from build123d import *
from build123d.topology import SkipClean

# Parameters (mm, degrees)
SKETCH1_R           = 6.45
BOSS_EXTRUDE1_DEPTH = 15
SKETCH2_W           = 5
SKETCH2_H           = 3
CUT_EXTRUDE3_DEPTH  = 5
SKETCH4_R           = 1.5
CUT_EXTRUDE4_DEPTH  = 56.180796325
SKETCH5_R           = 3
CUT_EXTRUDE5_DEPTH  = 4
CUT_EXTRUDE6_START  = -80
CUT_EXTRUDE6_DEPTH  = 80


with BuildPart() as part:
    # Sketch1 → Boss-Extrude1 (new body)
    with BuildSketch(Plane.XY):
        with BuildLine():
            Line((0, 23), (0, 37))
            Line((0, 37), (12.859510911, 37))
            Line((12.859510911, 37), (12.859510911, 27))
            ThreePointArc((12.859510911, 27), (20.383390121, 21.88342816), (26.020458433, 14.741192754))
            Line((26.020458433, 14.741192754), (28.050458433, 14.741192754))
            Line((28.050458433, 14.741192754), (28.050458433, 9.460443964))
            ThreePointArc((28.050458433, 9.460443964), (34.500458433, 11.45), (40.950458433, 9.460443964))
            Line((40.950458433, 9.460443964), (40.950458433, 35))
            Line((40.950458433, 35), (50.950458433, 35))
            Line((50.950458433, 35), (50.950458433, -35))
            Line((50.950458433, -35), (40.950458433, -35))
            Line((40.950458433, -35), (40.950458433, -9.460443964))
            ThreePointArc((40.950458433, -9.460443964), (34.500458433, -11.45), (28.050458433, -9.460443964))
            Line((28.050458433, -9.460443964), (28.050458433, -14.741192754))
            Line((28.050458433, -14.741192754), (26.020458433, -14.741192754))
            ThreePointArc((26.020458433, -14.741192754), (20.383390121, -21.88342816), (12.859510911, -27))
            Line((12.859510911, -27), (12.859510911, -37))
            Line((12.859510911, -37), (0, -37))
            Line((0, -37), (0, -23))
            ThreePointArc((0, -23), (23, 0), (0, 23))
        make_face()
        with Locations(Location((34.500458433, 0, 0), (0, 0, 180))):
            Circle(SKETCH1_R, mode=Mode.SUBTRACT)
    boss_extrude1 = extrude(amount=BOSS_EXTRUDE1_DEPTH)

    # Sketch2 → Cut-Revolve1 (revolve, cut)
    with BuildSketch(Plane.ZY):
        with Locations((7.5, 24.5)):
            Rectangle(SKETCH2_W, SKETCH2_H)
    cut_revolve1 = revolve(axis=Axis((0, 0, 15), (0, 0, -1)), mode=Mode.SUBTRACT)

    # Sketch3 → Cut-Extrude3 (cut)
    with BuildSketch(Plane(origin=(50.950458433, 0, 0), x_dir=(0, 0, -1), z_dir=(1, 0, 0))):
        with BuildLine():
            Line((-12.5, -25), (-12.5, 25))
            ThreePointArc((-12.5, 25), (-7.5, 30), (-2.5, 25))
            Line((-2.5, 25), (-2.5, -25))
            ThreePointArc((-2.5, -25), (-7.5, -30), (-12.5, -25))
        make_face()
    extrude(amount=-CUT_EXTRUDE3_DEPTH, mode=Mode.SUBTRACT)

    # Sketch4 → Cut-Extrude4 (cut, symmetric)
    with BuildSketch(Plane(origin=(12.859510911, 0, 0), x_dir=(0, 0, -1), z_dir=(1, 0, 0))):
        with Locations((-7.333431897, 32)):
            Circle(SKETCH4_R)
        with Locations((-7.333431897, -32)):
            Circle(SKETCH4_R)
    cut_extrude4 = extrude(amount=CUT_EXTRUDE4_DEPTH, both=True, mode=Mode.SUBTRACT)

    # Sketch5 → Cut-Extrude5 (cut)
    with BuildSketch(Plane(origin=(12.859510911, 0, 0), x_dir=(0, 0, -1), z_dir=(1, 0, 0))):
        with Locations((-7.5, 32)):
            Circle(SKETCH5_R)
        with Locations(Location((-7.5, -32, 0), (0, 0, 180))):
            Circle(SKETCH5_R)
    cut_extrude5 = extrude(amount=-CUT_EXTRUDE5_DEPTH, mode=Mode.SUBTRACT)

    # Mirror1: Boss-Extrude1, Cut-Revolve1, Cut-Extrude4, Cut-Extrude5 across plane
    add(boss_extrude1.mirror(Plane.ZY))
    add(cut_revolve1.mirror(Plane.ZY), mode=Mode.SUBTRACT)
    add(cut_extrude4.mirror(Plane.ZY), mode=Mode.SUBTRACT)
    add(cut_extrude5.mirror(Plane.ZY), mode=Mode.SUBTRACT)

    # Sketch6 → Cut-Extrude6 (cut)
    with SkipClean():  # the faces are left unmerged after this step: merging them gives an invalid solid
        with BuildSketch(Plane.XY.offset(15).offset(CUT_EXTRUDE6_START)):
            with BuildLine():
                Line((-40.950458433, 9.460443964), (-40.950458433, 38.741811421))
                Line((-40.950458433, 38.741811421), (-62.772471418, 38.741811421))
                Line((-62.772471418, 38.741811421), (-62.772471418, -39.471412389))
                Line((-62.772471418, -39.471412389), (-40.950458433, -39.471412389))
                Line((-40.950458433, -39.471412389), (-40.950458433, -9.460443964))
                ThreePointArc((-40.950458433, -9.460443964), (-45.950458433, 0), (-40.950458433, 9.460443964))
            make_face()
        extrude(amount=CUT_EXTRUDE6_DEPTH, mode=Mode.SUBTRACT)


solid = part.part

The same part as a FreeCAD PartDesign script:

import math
import FreeCAD as App
import Part
import Sketcher

V = App.Vector
Q = App.Units.Quantity


def add_polygon(sketch, points):
    """Adds a closed chain of lines whose ends are joined by coincident constraints."""
    first, n = sketch.GeometryCount, len(points)
    for a, b in zip(points, points[1:] + points[:1]):
        sketch.addGeometry(Part.LineSegment(App.Vector(*a, 0), App.Vector(*b, 0)), False)
    for i in range(n):
        sketch.addConstraint(Sketcher.Constraint("Coincident", first + i, 2, first + (i + 1) % n, 1))

doc = App.newDocument("Part")
params = doc.addObject("Spreadsheet::Sheet", "Params")
for row, (alias, value) in enumerate([
    ("sketch1_radius", "23 mm"),
    ("sketch1_diameter", "12.9 mm"),
    ("sketch1_width", "10 mm"),
    ("sketch1_height", "14 mm"),
    ("sketch1_height2", "70 mm"),
    ("pad1_length", "15 mm"),
    ("sketch2_width", "3 mm"),
    ("sketch2_height", "5 mm"),
    ("groove_angle", "360 deg"),
    ("sketch3_radius", "5 mm"),
    ("sketch3_width", "50 mm"),
    ("pocket1_length", "5 mm"),
    ("sketch4_diameter", "3 mm"),
    ("pocket2_length", "112.361593 mm"),
    ("sketch5_diameter", "6 mm"),
    ("pocket3_length", "4 mm"),
    ("sketch6_radius", "11.45 mm"),
    ("pocket4_length", "80 mm"),
], start=1):
    params.set(f"A{row}", alias)
    params.set(f"B{row}", "=" + value)
    params.setAlias(f"B{row}", alias)

body = doc.addObject("PartDesign::Body", "Body")

# Sketch on XY plane
sketch1 = body.newObject("Sketcher::SketchObject", "Sketch")
sketch1.AttachmentSupport = (doc.getObject("XY_Plane"), [""])
sketch1.MapMode = "FlatFace"
sketch1.addGeometry([
    Part.LineSegment(V(0, 37, 0), V(0, 23, 0)),  # 0
    Part.ArcOfCircle(Part.Circle(V(0, 0, 0), V(0, 0, 1), 23), math.radians(-90), math.radians(90)),  # 1
    Part.LineSegment(V(0, -23, 0), V(0, -37, 0)),  # 2
    Part.LineSegment(V(0, -37, 0), V(12.9, -37, 0)),  # 3
    Part.LineSegment(V(12.9, -37, 0), V(12.9, -27, 0)),  # 4
    Part.ArcOfCircle(Part.Circle(V(0, 0, 0), V(0, 0, 1), 29.9), math.radians(-65), math.radians(-30)),  # 5
    Part.LineSegment(V(26, -14.7, 0), V(28.1, -14.7, 0)),  # 6
    Part.LineSegment(V(28.1, -14.7, 0), V(28.1, -9.5, 0)),  # 7
    Part.ArcOfCircle(Part.Circle(V(34.5, 0, 0), V(0, 0, 1), 11.4), math.radians(-124), math.radians(-56)),  # 8
    Part.LineSegment(V(41, -9.5, 0), V(41, -35, 0)),  # 9
    Part.LineSegment(V(41, -35, 0), V(51, -35, 0)),  # 10
    Part.LineSegment(V(51, -35, 0), V(51, 35, 0)),  # 11
    Part.LineSegment(V(51, 35, 0), V(41, 35, 0)),  # 12
    Part.LineSegment(V(41, 35, 0), V(41, 9.5, 0)),  # 13
    Part.ArcOfCircle(Part.Circle(V(34.5, 0, 0), V(0, 0, 1), 11.4), math.radians(56), math.radians(124)),  # 14
    Part.LineSegment(V(28.1, 9.5, 0), V(28.1, 14.7, 0)),  # 15
    Part.LineSegment(V(28.1, 14.7, 0), V(26, 14.7, 0)),  # 16
    Part.ArcOfCircle(Part.Circle(V(0, 0, 0), V(0, 0, 1), 29.9), math.radians(30), math.radians(65)),  # 17
    Part.LineSegment(V(12.9, 27, 0), V(12.9, 37, 0)),  # 18
    Part.LineSegment(V(12.9, 37, 0), V(0, 37, 0)),  # 19
    Part.Circle(V(34.5, 0, 0), V(0, 0, 1), 6.5),  # 20
], False)
sketch1.addConstraint([
    Sketcher.Constraint("Coincident", 0, 2, 1, 2),
    Sketcher.Constraint("Coincident", 1, 1, 2, 1),
    Sketcher.Constraint("Coincident", 2, 2, 3, 1),
    Sketcher.Constraint("Coincident", 3, 2, 4, 1),
    Sketcher.Constraint("Coincident", 4, 2, 5, 1),
    Sketcher.Constraint("Coincident", 5, 2, 6, 1),
    Sketcher.Constraint("Coincident", 6, 2, 7, 1),
    Sketcher.Constraint("Coincident", 7, 2, 8, 1),
    Sketcher.Constraint("Coincident", 8, 2, 9, 1),
    Sketcher.Constraint("Coincident", 9, 2, 10, 1),
    Sketcher.Constraint("Coincident", 10, 2, 11, 1),
    Sketcher.Constraint("Coincident", 11, 2, 12, 1),
    Sketcher.Constraint("Coincident", 12, 2, 13, 1),
    Sketcher.Constraint("Coincident", 13, 2, 14, 1),
    Sketcher.Constraint("Coincident", 14, 2, 15, 1),
    Sketcher.Constraint("Coincident", 15, 2, 16, 1),
    Sketcher.Constraint("Coincident", 16, 2, 17, 1),
    Sketcher.Constraint("Coincident", 17, 2, 18, 1),
    Sketcher.Constraint("Coincident", 18, 2, 19, 1),
    Sketcher.Constraint("Coincident", 19, 2, 0, 1),
    Sketcher.Constraint("Vertical", 0),
    Sketcher.Constraint("Vertical", 2),
    Sketcher.Constraint("Horizontal", 3),
    Sketcher.Constraint("Vertical", 4),
    Sketcher.Constraint("Horizontal", 6),
    Sketcher.Constraint("Vertical", 7),
    Sketcher.Constraint("Vertical", 9),
    Sketcher.Constraint("Horizontal", 10),
    Sketcher.Constraint("Vertical", 11),
    Sketcher.Constraint("Horizontal", 12),
    Sketcher.Constraint("Vertical", 13),
    Sketcher.Constraint("Vertical", 15),
    Sketcher.Constraint("Horizontal", 16),
    Sketcher.Constraint("Vertical", 18),
    Sketcher.Constraint("Horizontal", 19),
    Sketcher.Constraint("Coincident", 1, 3, -1, 1),
    Sketcher.Constraint("Coincident", 5, 3, -1, 1),
    Sketcher.Constraint("Coincident", 17, 3, -1, 1),
    Sketcher.Constraint("Coincident", 14, 3, 8, 3),
    Sketcher.Constraint("Coincident", 20, 3, 8, 3),
    Sketcher.Constraint("Equal", 8, 14),
    Sketcher.Constraint("Equal", 5, 17),
    Sketcher.Constraint("Symmetric", 2, 2, 19, 2, -1, 1),
    Sketcher.Constraint("Symmetric", 9, 2, 12, 2, -1),
    Sketcher.Constraint("Symmetric", 7, 2, 14, 2, -1),
    Sketcher.Constraint("PointOnObject", 0, 2, -2),
    Sketcher.Constraint("Horizontal", 7, 2, 8, 2),
    Sketcher.Constraint("Vertical", 5, 2, 16, 2),
    Sketcher.Constraint("Vertical", 4, 2, 17, 2),
    Sketcher.Constraint("Equal", 12, 4),
    Sketcher.Constraint("Radius", 1, Q("23 mm")),
    Sketcher.Constraint("Diameter", 20, Q("12.9 mm")),
    Sketcher.Constraint("DistanceX", 10, 1, 10, 2, Q("10 mm")),
    Sketcher.Constraint("DistanceY", 0, 2, 0, 1, Q("14 mm")),
    Sketcher.Constraint("DistanceY", 11, 1, 11, 2, Q("70 mm")),
    Sketcher.Constraint("Radius", 8, Q("11.45 mm")),
    Sketcher.Constraint("DistanceX", 6, 1, 6, 2, Q("2.03 mm")),
    Sketcher.Constraint("DistanceX", 7, 2, 8, 2, Q("12.9 mm")),
    Sketcher.Constraint("Radius", 5, Q("29.90597 mm")),
    Sketcher.Constraint("DistanceY", 7, 1, 7, 2, Q("5.280749 mm")),
])
sketch1.setExpression("Constraints[50]", "Params.sketch1_radius")
sketch1.setExpression("Constraints[51]", "Params.sketch1_diameter")
sketch1.setExpression("Constraints[52]", "Params.sketch1_width")
sketch1.setExpression("Constraints[53]", "Params.sketch1_height")
sketch1.setExpression("Constraints[54]", "Params.sketch1_height2")
pad1 = body.newObject("PartDesign::Pad", "Pad")
pad1.Profile = sketch1
pad1.setExpression("Length", "Params.pad1_length")

# Sketch on YZ plane
sketch2 = body.newObject("Sketcher::SketchObject", "Sketch001")
sketch2.AttachmentSupport = (doc.getObject("YZ_Plane"), [""])
sketch2.MapMode = "FlatFace"
add_polygon(sketch2, [(26, 5), (23, 5), (23, 10), (26, 10)])  # lines 0-3
sketch2.addConstraint([
    Sketcher.Constraint("Horizontal", 0),
    Sketcher.Constraint("Vertical", 1),
    Sketcher.Constraint("Horizontal", 2),
    Sketcher.Constraint("Vertical", 3),
    Sketcher.Constraint("DistanceX", 0, 2, 0, 1, Q("3 mm")),
    Sketcher.Constraint("DistanceY", 1, 1, 1, 2, Q("5 mm")),
    Sketcher.Constraint("DistanceX", -1, 1, 0, 2, Q("23 mm")),
    Sketcher.Constraint("DistanceY", -1, 1, 0, 2, Q("5 mm")),
])
sketch2.setExpression("Constraints[8]", "Params.sketch2_width")
sketch2.setExpression("Constraints[9]", "Params.sketch2_height")
groove = body.newObject("PartDesign::Groove", "Groove")
groove.Profile = sketch2
groove.ReferenceAxis = (sketch2, ["V_Axis"])
groove.setExpression("Angle", "Params.groove_angle")

# Sketch on YZ plane
sketch3 = body.newObject("Sketcher::SketchObject", "Sketch002")
sketch3.AttachmentSupport = (doc.getObject("YZ_Plane"), [""])
sketch3.MapMode = "FlatFace"
sketch3.AttachmentOffset = App.Placement(V(0, 0, 50.950458), App.Rotation())
sketch3.addGeometry([
    Part.LineSegment(V(25, 12, 0), V(-25, 12, 0)),
    Part.ArcOfCircle(Part.Circle(V(-25, 8, 0), V(0, 0, 1), 5), math.radians(90), math.radians(270)),
    Part.LineSegment(V(-25, 2, 0), V(25, 2, 0)),
    Part.ArcOfCircle(Part.Circle(V(25, 8, 0), V(0, 0, 1), 5), math.radians(-90), math.radians(90)),
], False)
sketch3.addConstraint([
    Sketcher.Constraint("Tangent", 0, 2, 1, 1),
    Sketcher.Constraint("Tangent", 1, 2, 2, 1),
    Sketcher.Constraint("Tangent", 2, 2, 3, 1),
    Sketcher.Constraint("Tangent", 3, 2, 0, 1),
    Sketcher.Constraint("Horizontal", 0),
    Sketcher.Constraint("Horizontal", 2),
    Sketcher.Constraint("Radius", 1, Q("5 mm")),
    Sketcher.Constraint("DistanceX", 0, 2, 0, 1, Q("50 mm")),
    Sketcher.Constraint("DistanceX", 1, 3, -1, 1, Q("25 mm")),
    Sketcher.Constraint("DistanceY", -1, 1, 1, 3, Q("7.5 mm")),
])
sketch3.setExpression("Constraints[6]", "Params.sketch3_radius")
sketch3.setExpression("Constraints[7]", "Params.sketch3_width")
pocket1 = body.newObject("PartDesign::Pocket", "Pocket")
pocket1.Profile = sketch3
pocket1.setExpression("Length", "Params.pocket1_length")

# Sketch on YZ plane
sketch4 = body.newObject("Sketcher::SketchObject", "Sketch003")
sketch4.AttachmentSupport = (doc.getObject("YZ_Plane"), [""])
sketch4.MapMode = "FlatFace"
sketch4.AttachmentOffset = App.Placement(V(0, 0, 12.859511), App.Rotation())
sketch4.addGeometry([
    Part.Circle(V(32, 7.3, 0), V(0, 0, 1), 1.5),
    Part.Circle(V(-32, 7.3, 0), V(0, 0, 1), 1.5),
], False)
sketch4.addConstraint([
    Sketcher.Constraint("Equal", 0, 1),
    Sketcher.Constraint("Symmetric", 0, 3, 1, 3, -2),
    Sketcher.Constraint("Diameter", 0, Q("3 mm")),
    Sketcher.Constraint("DistanceX", -1, 1, 0, 3, Q("32 mm")),
    Sketcher.Constraint("DistanceY", -1, 1, 0, 3, Q("7.333432 mm")),
])
sketch4.setExpression("Constraints[2]", "Params.sketch4_diameter")
pocket2 = body.newObject("PartDesign::Pocket", "Pocket001")
pocket2.Profile = sketch4
pocket2.setExpression("Length", "Params.pocket2_length")
pocket2.Midplane = True

# Sketch on YZ plane
sketch5 = body.newObject("Sketcher::SketchObject", "Sketch004")
sketch5.AttachmentSupport = (doc.getObject("YZ_Plane"), [""])
sketch5.MapMode = "FlatFace"
sketch5.AttachmentOffset = App.Placement(V(0, 0, 12.859511), App.Rotation())
sketch5.addGeometry([
    Part.Circle(V(32, 7.5, 0), V(0, 0, 1), 3),
    Part.Circle(V(-32, 7.5, 0), V(0, 0, 1), 3),
], False)
sketch5.addConstraint([
    Sketcher.Constraint("Equal", 0, 1),
    Sketcher.Constraint("Symmetric", 0, 3, 1, 3, -2),
    Sketcher.Constraint("Diameter", 0, Q("6 mm")),
    Sketcher.Constraint("DistanceX", -1, 1, 0, 3, Q("32 mm")),
    Sketcher.Constraint("DistanceY", -1, 1, 0, 3, Q("7.5 mm")),
])
sketch5.setExpression("Constraints[2]", "Params.sketch5_diameter")
pocket3 = body.newObject("PartDesign::Pocket", "Pocket002")
pocket3.Profile = sketch5
pocket3.setExpression("Length", "Params.pocket3_length")
doc.recompute()

mirrored = body.newObject("PartDesign::Mirrored", "Mirrored")
mirrored.Originals = [pad1, groove, pocket2, pocket3]
mirrored.MirrorPlane = (doc.getObject("YZ_Plane"), [""])
body.Tip = mirrored

# Sketch on XY plane
sketch6 = body.newObject("Sketcher::SketchObject", "Sketch005")
sketch6.AttachmentSupport = (doc.getObject("XY_Plane"), [""])
sketch6.MapMode = "FlatFace"
sketch6.AttachmentOffset = App.Placement(V(0, 0, -65), App.Rotation())
sketch6.addGeometry([
    Part.LineSegment(V(-41, 9, 0), V(-41, 39, 0)),  # 0
    Part.LineSegment(V(-41, 39, 0), V(-63, 39, 0)),  # 1
    Part.LineSegment(V(-63, 39, 0), V(-63, -39, 0)),  # 2
    Part.LineSegment(V(-63, -39, 0), V(-41, -39, 0)),  # 3
    Part.LineSegment(V(-41, -39, 0), V(-41, -9, 0)),  # 4
    Part.ArcOfCircle(Part.Circle(V(-35, 0, 0), V(0, 0, 1), 11), math.radians(124), math.radians(236)),  # 5
], False)
sketch6.addConstraint([
    Sketcher.Constraint("Coincident", 0, 2, 1, 1),
    Sketcher.Constraint("Coincident", 1, 2, 2, 1),
    Sketcher.Constraint("Coincident", 2, 2, 3, 1),
    Sketcher.Constraint("Coincident", 3, 2, 4, 1),
    Sketcher.Constraint("Coincident", 4, 2, 5, 2),
    Sketcher.Constraint("Coincident", 5, 1, 0, 1),
    Sketcher.Constraint("Vertical", 0),
    Sketcher.Constraint("Horizontal", 1),
    Sketcher.Constraint("Vertical", 2),
    Sketcher.Constraint("Horizontal", 3),
    Sketcher.Constraint("Vertical", 4),
    Sketcher.Constraint("Symmetric", 4, 2, 5, 1, -1),
    Sketcher.Constraint("Radius", 5, Q("11.45 mm")),
    Sketcher.Constraint("DistanceX", 0, 2, 5, 3, Q("6.45 mm")),
    Sketcher.Constraint("DistanceY", 4, 1, 4, 2, Q("30.010968 mm")),
    Sketcher.Constraint("DistanceX", 1, 2, 1, 1, Q("21.822013 mm")),
    Sketcher.Constraint("DistanceY", 0, 1, 0, 2, Q("29.281367 mm")),
    Sketcher.Constraint("DistanceX", 5, 3, -1, 1, Q("34.500458 mm")),
])
sketch6.setExpression("Constraints[12]", "Params.sketch6_radius")
pocket4 = body.newObject("PartDesign::Pocket", "Pocket003")
pocket4.Profile = sketch6
pocket4.setExpression("Length", "Params.pocket4_length")
pocket4.Reversed = True

doc.recompute()
